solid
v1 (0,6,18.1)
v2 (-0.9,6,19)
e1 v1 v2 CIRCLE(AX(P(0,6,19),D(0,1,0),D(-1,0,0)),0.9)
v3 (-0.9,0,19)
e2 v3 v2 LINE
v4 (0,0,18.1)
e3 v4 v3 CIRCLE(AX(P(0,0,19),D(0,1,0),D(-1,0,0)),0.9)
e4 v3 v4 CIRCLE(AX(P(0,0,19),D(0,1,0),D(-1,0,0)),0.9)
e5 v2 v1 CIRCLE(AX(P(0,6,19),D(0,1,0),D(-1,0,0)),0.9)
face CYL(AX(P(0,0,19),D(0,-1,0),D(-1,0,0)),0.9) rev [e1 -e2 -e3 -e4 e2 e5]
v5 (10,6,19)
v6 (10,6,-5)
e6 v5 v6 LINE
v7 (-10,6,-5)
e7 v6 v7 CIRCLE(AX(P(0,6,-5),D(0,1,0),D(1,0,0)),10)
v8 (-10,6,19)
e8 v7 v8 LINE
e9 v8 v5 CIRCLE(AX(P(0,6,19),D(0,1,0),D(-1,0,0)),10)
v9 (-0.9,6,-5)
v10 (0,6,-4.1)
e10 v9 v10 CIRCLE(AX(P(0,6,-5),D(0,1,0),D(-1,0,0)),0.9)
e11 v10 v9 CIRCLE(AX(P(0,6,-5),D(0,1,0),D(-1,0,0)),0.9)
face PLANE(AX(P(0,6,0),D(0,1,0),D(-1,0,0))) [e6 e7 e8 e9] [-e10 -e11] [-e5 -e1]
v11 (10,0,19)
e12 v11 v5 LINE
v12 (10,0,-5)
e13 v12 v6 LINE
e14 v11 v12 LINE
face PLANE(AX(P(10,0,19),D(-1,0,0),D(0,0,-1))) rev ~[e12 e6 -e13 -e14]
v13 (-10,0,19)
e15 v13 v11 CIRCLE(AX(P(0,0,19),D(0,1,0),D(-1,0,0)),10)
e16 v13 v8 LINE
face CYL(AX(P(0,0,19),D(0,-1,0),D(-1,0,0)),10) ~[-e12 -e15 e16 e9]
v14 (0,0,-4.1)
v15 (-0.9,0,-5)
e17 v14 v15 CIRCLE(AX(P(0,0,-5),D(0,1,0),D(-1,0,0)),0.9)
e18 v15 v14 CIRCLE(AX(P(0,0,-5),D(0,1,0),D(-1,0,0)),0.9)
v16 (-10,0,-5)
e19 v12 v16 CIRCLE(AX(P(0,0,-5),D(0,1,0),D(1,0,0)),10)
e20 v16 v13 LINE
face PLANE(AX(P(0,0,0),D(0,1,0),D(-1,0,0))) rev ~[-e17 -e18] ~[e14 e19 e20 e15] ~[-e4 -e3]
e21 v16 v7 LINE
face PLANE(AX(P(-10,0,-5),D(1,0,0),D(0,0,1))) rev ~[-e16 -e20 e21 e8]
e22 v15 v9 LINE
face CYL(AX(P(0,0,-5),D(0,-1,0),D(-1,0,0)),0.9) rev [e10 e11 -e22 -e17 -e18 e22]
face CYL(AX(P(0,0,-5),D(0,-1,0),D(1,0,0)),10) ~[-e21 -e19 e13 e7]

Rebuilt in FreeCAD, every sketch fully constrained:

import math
import FreeCAD as App
import Part
import Sketcher

doc = App.newDocument("Part")
body = doc.addObject("PartDesign::Body", "Body")

sketch1 = doc.addObject("Sketcher::SketchObject", "Sketch")
body.addObject(sketch1)
sketch1.AttachmentSupport = (doc.XZ_Plane, [""])
sketch1.MapMode = "FlatFace"
sketch1.addGeometry([
    Part.ArcOfCircle(Part.Circle(App.Vector(0, 19, 0), App.Vector(0, 0, 1), 10), math.radians(0), math.radians(180)),
    Part.LineSegment(App.Vector(10, 19, 0), App.Vector(10, -5, 0)),
    Part.ArcOfCircle(Part.Circle(App.Vector(0, -5, 0), App.Vector(0, 0, 1), 10), math.radians(180), math.radians(360)),
    Part.LineSegment(App.Vector(-10, -5, 0), App.Vector(-10, 19, 0)),
    Part.Circle(App.Vector(0, -5, 0), App.Vector(0, 0, 1), 0.9),
    Part.Circle(App.Vector(0, 19, 0), App.Vector(0, 0, 1), 0.9),
], False)
sketch1.addConstraint([
    Sketcher.Constraint("Tangent", 0, 1, 1, 1),
    Sketcher.Constraint("Tangent", 1, 2, 2, 2),
    Sketcher.Constraint("Tangent", 2, 1, 3, 1),
    Sketcher.Constraint("Tangent", 3, 2, 0, 2),
    Sketcher.Constraint("Vertical", 1),
    Sketcher.Constraint("Vertical", 3),
    Sketcher.Constraint("Coincident", 4, 3, 2, 3),
    Sketcher.Constraint("Coincident", 5, 3, 0, 3),
    Sketcher.Constraint("Equal", 4, 5),
    Sketcher.Constraint("PointOnObject", 0, 3, -2),
    Sketcher.Constraint("Radius", 0, 10.0),
    Sketcher.Constraint("Diameter", 4, 1.8),
    Sketcher.Constraint("DistanceY", 2, 3, -1, 1, 5.0),
    Sketcher.Constraint("DistanceY", 1, 2, 1, 1, 24.0),
])
pad1 = doc.addObject("PartDesign::Pad", "Pad")
body.addObject(pad1)
pad1.Profile = sketch1
pad1.Length = 6
pad1.Reversed = True

doc.recompute()
